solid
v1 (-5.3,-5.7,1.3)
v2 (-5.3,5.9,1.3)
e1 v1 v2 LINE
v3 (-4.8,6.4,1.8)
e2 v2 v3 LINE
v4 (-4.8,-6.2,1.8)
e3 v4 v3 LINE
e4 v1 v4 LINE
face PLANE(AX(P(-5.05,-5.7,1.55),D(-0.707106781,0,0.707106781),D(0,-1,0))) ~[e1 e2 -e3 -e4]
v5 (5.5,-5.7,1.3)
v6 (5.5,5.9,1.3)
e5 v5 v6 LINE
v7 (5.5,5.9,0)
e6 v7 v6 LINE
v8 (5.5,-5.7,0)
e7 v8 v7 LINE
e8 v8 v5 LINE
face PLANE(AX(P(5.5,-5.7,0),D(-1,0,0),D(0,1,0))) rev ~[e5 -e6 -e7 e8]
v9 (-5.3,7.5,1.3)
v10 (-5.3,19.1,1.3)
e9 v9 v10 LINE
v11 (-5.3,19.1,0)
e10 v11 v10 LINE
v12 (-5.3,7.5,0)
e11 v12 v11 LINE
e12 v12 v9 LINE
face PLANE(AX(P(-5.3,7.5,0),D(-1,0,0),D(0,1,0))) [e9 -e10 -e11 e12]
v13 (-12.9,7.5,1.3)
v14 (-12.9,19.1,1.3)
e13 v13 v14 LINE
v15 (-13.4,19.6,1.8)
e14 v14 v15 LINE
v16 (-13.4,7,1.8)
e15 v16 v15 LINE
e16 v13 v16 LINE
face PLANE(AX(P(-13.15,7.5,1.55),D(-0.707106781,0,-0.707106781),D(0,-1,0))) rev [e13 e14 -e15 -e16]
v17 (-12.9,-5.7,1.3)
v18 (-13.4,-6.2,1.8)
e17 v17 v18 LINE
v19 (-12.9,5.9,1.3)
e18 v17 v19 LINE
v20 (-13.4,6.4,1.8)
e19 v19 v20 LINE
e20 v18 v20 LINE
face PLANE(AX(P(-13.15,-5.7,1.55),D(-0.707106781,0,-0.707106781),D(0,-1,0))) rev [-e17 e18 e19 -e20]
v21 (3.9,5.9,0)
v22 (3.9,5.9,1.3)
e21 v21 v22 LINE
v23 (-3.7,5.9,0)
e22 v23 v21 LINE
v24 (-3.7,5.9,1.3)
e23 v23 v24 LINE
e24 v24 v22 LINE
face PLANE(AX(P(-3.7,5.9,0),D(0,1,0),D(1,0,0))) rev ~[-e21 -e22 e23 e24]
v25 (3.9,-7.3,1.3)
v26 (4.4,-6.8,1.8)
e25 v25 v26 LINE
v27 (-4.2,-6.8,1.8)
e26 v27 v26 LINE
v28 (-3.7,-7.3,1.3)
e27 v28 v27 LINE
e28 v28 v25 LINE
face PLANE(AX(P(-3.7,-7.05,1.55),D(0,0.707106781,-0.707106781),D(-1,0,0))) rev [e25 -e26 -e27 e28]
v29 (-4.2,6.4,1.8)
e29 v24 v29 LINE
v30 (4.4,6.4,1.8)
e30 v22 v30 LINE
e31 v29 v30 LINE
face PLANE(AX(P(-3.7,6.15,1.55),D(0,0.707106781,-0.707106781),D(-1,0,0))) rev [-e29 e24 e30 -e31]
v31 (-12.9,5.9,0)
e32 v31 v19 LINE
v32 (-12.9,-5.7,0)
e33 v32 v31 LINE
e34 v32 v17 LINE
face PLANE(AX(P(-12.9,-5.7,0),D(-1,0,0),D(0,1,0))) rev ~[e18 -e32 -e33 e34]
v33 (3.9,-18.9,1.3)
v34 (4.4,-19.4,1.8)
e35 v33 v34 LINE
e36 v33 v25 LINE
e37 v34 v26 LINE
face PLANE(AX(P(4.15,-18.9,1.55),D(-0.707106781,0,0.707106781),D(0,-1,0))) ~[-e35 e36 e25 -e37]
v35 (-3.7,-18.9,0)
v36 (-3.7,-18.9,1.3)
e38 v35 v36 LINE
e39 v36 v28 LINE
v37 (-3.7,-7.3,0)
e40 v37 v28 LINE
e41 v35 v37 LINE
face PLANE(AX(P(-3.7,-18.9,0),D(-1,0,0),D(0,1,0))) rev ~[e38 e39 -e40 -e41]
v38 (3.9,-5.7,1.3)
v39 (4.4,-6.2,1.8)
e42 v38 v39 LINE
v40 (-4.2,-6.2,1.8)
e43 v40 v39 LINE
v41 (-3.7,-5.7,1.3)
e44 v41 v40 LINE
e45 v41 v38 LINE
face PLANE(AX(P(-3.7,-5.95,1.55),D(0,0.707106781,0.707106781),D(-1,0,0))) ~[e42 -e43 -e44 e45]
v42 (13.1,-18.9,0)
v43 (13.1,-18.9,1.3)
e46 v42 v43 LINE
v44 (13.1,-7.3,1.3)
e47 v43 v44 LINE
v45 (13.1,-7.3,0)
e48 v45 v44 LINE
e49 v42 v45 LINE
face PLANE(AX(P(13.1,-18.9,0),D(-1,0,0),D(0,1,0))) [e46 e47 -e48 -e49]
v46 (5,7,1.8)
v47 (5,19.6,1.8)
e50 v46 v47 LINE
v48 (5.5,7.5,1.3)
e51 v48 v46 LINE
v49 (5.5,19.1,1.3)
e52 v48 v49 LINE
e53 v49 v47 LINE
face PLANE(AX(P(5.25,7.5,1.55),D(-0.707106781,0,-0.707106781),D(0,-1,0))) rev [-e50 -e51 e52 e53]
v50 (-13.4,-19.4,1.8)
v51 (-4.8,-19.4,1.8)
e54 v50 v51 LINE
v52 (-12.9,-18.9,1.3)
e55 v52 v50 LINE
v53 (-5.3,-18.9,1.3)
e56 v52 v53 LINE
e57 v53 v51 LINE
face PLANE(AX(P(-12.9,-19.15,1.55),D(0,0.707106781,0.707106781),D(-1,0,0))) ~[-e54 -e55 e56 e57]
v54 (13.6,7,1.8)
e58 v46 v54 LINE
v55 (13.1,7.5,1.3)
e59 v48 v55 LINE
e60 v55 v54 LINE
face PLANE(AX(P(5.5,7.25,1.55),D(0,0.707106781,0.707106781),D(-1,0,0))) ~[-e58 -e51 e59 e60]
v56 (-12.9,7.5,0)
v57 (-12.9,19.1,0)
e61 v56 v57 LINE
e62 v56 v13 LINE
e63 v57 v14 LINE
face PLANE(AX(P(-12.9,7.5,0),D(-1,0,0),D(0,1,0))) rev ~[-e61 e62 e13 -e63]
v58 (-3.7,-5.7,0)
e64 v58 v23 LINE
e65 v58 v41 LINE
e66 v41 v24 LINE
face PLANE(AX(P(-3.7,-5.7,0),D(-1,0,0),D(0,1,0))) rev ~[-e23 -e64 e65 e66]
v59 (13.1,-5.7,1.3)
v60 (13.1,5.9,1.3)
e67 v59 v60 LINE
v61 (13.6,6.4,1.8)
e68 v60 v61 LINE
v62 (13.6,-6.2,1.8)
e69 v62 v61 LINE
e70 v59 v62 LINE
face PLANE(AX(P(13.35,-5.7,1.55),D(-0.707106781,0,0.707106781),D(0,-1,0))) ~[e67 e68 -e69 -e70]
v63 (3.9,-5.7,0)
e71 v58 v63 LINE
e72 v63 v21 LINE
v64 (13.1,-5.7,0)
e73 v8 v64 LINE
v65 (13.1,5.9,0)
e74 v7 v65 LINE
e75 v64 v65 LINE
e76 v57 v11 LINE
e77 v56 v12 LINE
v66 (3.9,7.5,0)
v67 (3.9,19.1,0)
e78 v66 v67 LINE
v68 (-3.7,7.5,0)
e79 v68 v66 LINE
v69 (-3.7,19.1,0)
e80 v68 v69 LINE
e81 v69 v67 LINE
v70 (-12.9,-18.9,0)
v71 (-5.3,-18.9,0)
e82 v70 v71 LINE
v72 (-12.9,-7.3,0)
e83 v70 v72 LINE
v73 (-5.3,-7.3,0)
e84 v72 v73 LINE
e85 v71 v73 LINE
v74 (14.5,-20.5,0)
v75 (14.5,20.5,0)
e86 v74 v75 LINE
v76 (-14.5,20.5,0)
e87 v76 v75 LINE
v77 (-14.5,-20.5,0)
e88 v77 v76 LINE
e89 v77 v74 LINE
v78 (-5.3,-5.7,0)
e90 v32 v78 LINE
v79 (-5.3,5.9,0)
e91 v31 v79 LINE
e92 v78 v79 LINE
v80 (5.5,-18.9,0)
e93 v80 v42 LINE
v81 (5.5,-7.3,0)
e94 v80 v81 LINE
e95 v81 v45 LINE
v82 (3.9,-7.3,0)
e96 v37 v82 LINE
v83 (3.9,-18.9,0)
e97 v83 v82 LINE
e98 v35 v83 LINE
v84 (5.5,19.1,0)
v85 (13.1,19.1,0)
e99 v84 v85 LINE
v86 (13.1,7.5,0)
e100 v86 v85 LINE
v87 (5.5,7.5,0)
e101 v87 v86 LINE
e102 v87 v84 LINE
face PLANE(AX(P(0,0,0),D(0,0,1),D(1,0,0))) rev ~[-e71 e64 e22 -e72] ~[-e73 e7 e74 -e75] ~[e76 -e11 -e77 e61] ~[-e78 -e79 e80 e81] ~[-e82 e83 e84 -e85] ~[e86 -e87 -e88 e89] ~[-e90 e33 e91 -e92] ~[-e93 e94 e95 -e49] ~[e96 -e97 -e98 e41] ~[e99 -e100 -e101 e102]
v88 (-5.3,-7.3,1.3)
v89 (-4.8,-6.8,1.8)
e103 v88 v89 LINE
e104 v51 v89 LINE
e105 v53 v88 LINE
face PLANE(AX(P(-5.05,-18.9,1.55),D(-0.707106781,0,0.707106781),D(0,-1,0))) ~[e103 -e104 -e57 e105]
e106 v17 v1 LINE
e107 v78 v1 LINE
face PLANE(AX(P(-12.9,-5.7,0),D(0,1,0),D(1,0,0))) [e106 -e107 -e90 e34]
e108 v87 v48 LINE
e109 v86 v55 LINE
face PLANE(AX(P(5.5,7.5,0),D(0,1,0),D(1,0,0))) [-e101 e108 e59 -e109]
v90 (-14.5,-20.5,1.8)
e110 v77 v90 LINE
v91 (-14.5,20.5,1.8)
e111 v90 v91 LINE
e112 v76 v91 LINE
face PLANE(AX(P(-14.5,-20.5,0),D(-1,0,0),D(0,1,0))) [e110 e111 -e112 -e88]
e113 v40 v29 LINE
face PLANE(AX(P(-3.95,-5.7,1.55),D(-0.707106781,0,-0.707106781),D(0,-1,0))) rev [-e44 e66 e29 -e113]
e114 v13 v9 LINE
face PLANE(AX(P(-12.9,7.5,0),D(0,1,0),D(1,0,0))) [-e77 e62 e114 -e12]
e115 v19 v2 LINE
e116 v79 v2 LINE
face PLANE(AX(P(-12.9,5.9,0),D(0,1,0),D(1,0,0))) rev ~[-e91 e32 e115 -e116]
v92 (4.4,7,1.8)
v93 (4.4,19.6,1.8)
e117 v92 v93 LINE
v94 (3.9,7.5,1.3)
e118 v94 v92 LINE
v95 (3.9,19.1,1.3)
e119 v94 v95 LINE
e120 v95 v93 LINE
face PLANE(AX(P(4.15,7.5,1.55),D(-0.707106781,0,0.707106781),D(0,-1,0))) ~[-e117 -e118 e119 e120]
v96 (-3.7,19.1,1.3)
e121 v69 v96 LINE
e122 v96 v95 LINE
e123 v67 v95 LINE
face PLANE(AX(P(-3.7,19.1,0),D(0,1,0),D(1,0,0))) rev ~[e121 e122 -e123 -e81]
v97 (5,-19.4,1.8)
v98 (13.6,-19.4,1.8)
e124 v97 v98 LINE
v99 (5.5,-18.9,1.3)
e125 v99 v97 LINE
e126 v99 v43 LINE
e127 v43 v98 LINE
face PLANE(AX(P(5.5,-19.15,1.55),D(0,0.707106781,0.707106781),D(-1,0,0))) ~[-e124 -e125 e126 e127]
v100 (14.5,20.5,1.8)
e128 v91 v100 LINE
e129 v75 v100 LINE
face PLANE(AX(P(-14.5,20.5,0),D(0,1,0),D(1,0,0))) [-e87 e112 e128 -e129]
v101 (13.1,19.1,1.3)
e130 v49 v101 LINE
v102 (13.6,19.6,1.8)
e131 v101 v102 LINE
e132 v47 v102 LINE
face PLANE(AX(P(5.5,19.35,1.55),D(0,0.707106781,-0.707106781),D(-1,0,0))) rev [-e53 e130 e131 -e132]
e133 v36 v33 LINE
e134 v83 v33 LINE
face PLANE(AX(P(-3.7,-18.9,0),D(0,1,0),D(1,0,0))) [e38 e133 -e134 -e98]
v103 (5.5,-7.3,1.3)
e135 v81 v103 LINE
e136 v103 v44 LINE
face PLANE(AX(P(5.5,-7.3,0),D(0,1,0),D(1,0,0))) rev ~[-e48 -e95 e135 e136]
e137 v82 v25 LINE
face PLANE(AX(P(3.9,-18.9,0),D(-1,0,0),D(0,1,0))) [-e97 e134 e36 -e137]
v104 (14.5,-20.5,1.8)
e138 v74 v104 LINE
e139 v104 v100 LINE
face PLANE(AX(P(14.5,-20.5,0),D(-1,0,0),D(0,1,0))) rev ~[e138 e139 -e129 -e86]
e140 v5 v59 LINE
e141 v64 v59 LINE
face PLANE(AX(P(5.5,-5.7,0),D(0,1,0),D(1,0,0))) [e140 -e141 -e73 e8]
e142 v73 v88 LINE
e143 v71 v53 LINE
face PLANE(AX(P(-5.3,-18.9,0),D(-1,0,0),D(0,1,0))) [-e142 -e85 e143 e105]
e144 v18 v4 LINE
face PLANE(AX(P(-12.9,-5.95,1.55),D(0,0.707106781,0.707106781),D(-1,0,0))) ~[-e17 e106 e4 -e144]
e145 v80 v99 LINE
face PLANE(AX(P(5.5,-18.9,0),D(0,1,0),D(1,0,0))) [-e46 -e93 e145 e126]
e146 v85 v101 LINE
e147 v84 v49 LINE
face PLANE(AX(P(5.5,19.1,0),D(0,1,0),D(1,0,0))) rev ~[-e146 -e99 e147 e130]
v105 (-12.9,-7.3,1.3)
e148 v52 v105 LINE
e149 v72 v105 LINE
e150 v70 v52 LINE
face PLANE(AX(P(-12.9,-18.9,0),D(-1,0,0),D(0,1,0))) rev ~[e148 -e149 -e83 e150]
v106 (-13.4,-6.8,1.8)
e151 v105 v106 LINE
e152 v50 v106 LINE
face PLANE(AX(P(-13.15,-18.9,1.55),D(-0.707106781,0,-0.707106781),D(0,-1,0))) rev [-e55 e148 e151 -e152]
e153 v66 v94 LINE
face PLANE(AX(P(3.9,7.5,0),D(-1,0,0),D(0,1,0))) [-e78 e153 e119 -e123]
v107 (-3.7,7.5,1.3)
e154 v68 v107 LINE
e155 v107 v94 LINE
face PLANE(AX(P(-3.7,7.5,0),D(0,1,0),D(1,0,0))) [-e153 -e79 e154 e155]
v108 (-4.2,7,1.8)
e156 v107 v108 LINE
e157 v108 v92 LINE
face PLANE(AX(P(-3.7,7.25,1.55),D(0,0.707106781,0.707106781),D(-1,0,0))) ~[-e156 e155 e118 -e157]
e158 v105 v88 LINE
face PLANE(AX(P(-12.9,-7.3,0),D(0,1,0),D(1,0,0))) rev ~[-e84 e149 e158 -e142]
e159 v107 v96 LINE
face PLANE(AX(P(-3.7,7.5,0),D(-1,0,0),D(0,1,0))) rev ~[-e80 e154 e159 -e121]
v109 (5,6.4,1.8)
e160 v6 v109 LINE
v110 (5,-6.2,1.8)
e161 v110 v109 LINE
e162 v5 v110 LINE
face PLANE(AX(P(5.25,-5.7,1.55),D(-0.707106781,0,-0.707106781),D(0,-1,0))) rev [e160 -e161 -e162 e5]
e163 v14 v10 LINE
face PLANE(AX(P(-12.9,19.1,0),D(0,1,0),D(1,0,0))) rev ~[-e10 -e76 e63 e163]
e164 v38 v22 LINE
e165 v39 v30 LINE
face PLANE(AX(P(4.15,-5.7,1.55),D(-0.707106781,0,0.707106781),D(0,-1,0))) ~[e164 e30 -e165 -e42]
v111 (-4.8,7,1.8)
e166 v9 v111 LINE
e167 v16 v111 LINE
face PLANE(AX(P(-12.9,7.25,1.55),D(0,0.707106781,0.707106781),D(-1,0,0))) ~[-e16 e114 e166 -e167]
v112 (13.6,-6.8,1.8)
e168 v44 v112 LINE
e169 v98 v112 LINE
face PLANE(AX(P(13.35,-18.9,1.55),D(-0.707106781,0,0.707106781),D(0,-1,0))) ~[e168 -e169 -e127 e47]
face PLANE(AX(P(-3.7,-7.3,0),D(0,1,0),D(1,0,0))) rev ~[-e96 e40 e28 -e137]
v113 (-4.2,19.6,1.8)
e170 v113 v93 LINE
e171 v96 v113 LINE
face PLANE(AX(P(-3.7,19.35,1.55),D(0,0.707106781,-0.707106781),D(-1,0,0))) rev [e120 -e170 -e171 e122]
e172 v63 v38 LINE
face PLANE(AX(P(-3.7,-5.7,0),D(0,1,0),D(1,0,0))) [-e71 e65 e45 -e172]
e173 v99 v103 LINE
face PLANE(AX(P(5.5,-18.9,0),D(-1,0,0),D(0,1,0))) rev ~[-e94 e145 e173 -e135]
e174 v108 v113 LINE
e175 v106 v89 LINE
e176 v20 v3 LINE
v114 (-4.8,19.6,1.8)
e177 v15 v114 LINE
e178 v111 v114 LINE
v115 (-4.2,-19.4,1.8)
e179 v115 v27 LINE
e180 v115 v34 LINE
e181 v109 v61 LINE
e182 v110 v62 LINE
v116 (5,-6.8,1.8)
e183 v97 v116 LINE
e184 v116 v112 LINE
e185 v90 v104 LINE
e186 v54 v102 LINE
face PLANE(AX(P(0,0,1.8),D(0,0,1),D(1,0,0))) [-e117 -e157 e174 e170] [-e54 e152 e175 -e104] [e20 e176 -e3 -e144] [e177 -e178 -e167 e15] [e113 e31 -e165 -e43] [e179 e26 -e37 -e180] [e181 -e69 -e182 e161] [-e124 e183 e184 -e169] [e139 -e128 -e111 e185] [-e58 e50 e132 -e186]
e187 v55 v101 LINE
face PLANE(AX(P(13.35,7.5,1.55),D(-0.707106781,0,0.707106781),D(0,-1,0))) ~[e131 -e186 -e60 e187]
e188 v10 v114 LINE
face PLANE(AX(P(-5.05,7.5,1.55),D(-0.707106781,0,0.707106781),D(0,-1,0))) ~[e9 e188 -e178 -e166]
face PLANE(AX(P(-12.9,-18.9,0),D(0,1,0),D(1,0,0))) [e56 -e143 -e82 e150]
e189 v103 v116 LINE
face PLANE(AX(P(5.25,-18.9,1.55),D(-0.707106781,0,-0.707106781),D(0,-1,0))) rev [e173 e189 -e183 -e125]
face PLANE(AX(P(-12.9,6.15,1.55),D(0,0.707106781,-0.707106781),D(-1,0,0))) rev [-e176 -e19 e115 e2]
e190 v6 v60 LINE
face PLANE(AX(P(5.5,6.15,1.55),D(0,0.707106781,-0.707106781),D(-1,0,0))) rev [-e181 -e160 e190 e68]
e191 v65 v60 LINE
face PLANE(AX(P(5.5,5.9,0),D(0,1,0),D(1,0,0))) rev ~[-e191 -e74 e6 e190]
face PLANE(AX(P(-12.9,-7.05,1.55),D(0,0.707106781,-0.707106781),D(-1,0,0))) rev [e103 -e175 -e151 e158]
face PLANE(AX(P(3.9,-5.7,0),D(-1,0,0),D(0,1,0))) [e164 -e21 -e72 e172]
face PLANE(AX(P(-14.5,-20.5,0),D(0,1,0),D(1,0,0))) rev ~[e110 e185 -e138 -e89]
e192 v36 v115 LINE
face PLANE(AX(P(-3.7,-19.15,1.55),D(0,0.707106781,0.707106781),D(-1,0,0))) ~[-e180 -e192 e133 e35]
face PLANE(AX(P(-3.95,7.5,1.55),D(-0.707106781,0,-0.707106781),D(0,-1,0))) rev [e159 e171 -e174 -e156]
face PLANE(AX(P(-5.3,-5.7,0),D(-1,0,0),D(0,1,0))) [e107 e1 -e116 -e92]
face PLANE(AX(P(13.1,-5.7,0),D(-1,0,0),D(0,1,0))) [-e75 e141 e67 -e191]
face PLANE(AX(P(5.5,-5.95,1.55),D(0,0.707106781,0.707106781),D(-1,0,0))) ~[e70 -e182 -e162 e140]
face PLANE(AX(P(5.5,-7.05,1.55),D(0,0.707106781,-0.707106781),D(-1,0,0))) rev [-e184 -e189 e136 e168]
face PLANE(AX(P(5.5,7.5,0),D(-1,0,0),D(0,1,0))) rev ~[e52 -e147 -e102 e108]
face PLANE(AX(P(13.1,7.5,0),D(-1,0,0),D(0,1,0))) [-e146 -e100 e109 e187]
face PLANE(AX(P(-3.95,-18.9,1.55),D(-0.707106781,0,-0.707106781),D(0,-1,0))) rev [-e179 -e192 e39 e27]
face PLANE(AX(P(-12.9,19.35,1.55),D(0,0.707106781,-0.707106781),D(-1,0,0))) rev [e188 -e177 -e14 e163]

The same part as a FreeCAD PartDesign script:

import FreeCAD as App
import Part
import Sketcher
from FreeCAD import Vector
Q = App.Units.Quantity


def edges_at(feature, points):
    """Names of the edges that pass closest to the given points."""
    edges = feature.Shape.Edges
    near = lambda p: min(range(len(edges)), key=lambda i: edges[i].distToShape(Part.Vertex(*p))[0])
    return sorted({f"Edge{near(p) + 1}" for p in points})


def add_polygon(sketch, points):
    """Adds a closed chain of lines whose ends are joined by coincident constraints."""
    first, n = sketch.GeometryCount, len(points)
    for a, b in zip(points, points[1:] + points[:1]):
        sketch.addGeometry(Part.LineSegment(App.Vector(*a, 0), App.Vector(*b, 0)), False)
    for i in range(n):
        sketch.addConstraint(Sketcher.Constraint("Coincident", first + i, 2, first + (i + 1) % n, 1))

doc = App.newDocument("Part")
body = doc.addObject("PartDesign::Body", "Body")

# Sketch on XY plane
sketch1 = body.newObject("Sketcher::SketchObject", "Sketch")
sketch1.AttachmentSupport = (doc.getObject("XY_Plane"), [""])
sketch1.MapMode = "FlatFace"
add_polygon(sketch1, [(-14, 20), (-14, -20), (14, -20), (14, 20)])  # lines 0-3
add_polygon(sketch1, [(-5, -19), (-13, -19), (-13, -7), (-5, -7)])  # lines 4-7
add_polygon(sketch1, [(4, -19), (-4, -19), (-4, -7), (4, -7)])  # lines 8-11
add_polygon(sketch1, [(13, -19), (6, -19), (6, -7), (13, -7)])  # lines 12-15
add_polygon(sketch1, [(-5, -6), (-13, -6), (-13, 6), (-5, 6)])  # lines 16-19
add_polygon(sketch1, [(4, -6), (-4, -6), (-4, 6), (4, 6)])  # lines 20-23
add_polygon(sketch1, [(-5, 8), (-13, 8), (-13, 19), (-5, 19)])  # lines 24-27
add_polygon(sketch1, [(4, 8), (-4, 8), (-4, 19), (4, 19)])  # lines 28-31
add_polygon(sketch1, [(13, -6), (6, -6), (6, 6), (13, 6)])  # lines 32-35
add_polygon(sketch1, [(13, 8), (6, 8), (6, 19), (13, 19)])  # lines 36-39
sketch1.addConstraint([
    Sketcher.Constraint("Vertical", 0),
    Sketcher.Constraint("Horizontal", 1),
    Sketcher.Constraint("Vertical", 2),
    Sketcher.Constraint("Horizontal", 3),
    Sketcher.Constraint("Horizontal", 4),
    Sketcher.Constraint("Vertical", 5),
    Sketcher.Constraint("Horizontal", 6),
    Sketcher.Constraint("Vertical", 7),
    Sketcher.Constraint("Horizontal", 8),
    Sketcher.Constraint("Vertical", 9),
    Sketcher.Constraint("Horizontal", 10),
    Sketcher.Constraint("Vertical", 11),
    Sketcher.Constraint("Horizontal", 12),
    Sketcher.Constraint("Vertical", 13),
    Sketcher.Constraint("Horizontal", 14),
    Sketcher.Constraint("Vertical", 15),
    Sketcher.Constraint("Horizontal", 16),
    Sketcher.Constraint("Vertical", 17),
    Sketcher.Constraint("Horizontal", 18),
    Sketcher.Constraint("Vertical", 19),
    Sketcher.Constraint("Horizontal", 20),
    Sketcher.Constraint("Vertical", 21),
    Sketcher.Constraint("Horizontal", 22),
    Sketcher.Constraint("Vertical", 23),
    Sketcher.Constraint("Horizontal", 24),
    Sketcher.Constraint("Vertical", 25),
    Sketcher.Constraint("Horizontal", 26),
    Sketcher.Constraint("Vertical", 27),
    Sketcher.Constraint("Horizontal", 28),
    Sketcher.Constraint("Vertical", 29),
    Sketcher.Constraint("Horizontal", 30),
    Sketcher.Constraint("Vertical", 31),
    Sketcher.Constraint("Horizontal", 32),
    Sketcher.Constraint("Vertical", 33),
    Sketcher.Constraint("Horizontal", 34),
    Sketcher.Constraint("Vertical", 35),
    Sketcher.Constraint("Horizontal", 36),
    Sketcher.Constraint("Vertical", 37),
    Sketcher.Constraint("Horizontal", 38),
    Sketcher.Constraint("Vertical", 39),
    Sketcher.Constraint("Symmetric", 0, 2, 2, 2, -1, 1),
    Sketcher.Constraint("Horizontal", 7, 2, 8, 2),
    Sketcher.Constraint("Horizontal", 6, 2, 9, 2),
    Sketcher.Constraint("Horizontal", 11, 2, 12, 2),
    Sketcher.Constraint("Horizontal", 10, 2, 13, 2),
    Sketcher.Constraint("Horizontal", 19, 2, 20, 2),
    Sketcher.Constraint("Horizontal", 18, 2, 21, 2),
    Sketcher.Constraint("Horizontal", 27, 2, 28, 2),
    Sketcher.Constraint("Horizontal", 26, 2, 29, 2),
    Sketcher.Constraint("Horizontal", 23, 2, 32, 2),
    Sketcher.Constraint("Horizontal", 22, 2, 33, 2),
    Sketcher.Constraint("Horizontal", 31, 2, 36, 2),
    Sketcher.Constraint("Horizontal", 30, 2, 37, 2),
    Sketcher.Constraint("Vertical", 5, 2, 16, 2),
    Sketcher.Constraint("Vertical", 7, 2, 18, 2),
    Sketcher.Constraint("Vertical", 9, 2, 20, 2),
    Sketcher.Constraint("Vertical", 11, 2, 22, 2),
    Sketcher.Constraint("Vertical", 17, 2, 24, 2),
    Sketcher.Constraint("Vertical", 19, 2, 26, 2),
    Sketcher.Constraint("Vertical", 21, 2, 28, 2),
    Sketcher.Constraint("Vertical", 23, 2, 30, 2),
    Sketcher.Constraint("Vertical", 13, 2, 32, 2),
    Sketcher.Constraint("Vertical", 15, 2, 34, 2),
    Sketcher.Constraint("Vertical", 33, 2, 36, 2),
    Sketcher.Constraint("Vertical", 35, 2, 38, 2),
    Sketcher.Constraint("Equal", 6, 8),
    Sketcher.Constraint("Equal", 10, 12),
    Sketcher.Constraint("Equal", 15, 17),
    Sketcher.Constraint("Equal", 23, 25),
    Sketcher.Constraint("DistanceX", 1, 1, 1, 2, Q("29 mm")),
    Sketcher.Constraint("DistanceY", 0, 2, 0, 1, Q("41 mm")),
    Sketcher.Constraint("DistanceX", 4, 2, 4, 1, Q("7.6 mm")),
    Sketcher.Constraint("DistanceY", 5, 1, 5, 2, Q("11.6 mm")),
    Sketcher.Constraint("DistanceX", 12, 2, 1, 2, Q("9 mm")),
    Sketcher.Constraint("DistanceY", 24, 2, 3, 2, Q("13 mm")),
    Sketcher.Constraint("DistanceX", 4, 2, -1, 1, Q("12.9 mm")),
    Sketcher.Constraint("DistanceY", 4, 2, -1, 1, Q("18.9 mm")),
    Sketcher.Constraint("DistanceX", 8, 2, -1, 1, Q("3.7 mm")),
    Sketcher.Constraint("DistanceY", 16, 2, -1, 1, Q("5.7 mm")),
])
pad1 = body.newObject("PartDesign::Pad", "Pad")
pad1.Profile = sketch1
pad1.Length = 1.8
doc.recompute()

chamfer = body.newObject("PartDesign::Chamfer", "Chamfer")
chamfer.Base = (pad1, edges_at(pad1, [
    (-9.1, 19.1, 1.8),
    (-5.3, 13.3, 1.8),
    (-12.9, 13.3, 1.8),
    (-9.1, 7.5, 1.8),
    (0.1, 7.5, 1.8),
    (3.9, 13.3, 1.8),
    (0.1, 19.1, 1.8),
    (-3.7, 13.3, 1.8),
    (9.3, 19.1, 1.8),
    (13.1, 13.3, 1.8),
    (9.3, 7.5, 1.8),
    (5.5, 13.3, 1.8),
    (-9.1, 5.9, 1.8),
    (-5.3, 0.1, 1.8),
    (-9.1, -5.7, 1.8),
    (-12.9, 0.1, 1.8),
    (-3.7, 0.1, 1.8),
    (0.1, 5.9, 1.8),
    (3.9, 0.1, 1.8),
    (0.1, -5.7, 1.8),
    (9.3, -5.7, 1.8),
    (5.5, 0.1, 1.8),
    (9.3, 5.9, 1.8),
    (13.1, 0.1, 1.8),
    (9.3, -7.3, 1.8),
    (13.1, -13.1, 1.8),
    (9.3, -18.9, 1.8),
    (5.5, -13.1, 1.8),
    (0.1, -7.3, 1.8),
    (-3.7, -13.1, 1.8),
    (0.1, -18.9, 1.8),
    (3.9, -13.1, 1.8),
    (-9.1, -7.3, 1.8),
    (-5.3, -13.1, 1.8),
    (-9.1, -18.9, 1.8),
    (-12.9, -13.1, 1.8),
]))
chamfer.Size = 0.5

doc.recompute()
